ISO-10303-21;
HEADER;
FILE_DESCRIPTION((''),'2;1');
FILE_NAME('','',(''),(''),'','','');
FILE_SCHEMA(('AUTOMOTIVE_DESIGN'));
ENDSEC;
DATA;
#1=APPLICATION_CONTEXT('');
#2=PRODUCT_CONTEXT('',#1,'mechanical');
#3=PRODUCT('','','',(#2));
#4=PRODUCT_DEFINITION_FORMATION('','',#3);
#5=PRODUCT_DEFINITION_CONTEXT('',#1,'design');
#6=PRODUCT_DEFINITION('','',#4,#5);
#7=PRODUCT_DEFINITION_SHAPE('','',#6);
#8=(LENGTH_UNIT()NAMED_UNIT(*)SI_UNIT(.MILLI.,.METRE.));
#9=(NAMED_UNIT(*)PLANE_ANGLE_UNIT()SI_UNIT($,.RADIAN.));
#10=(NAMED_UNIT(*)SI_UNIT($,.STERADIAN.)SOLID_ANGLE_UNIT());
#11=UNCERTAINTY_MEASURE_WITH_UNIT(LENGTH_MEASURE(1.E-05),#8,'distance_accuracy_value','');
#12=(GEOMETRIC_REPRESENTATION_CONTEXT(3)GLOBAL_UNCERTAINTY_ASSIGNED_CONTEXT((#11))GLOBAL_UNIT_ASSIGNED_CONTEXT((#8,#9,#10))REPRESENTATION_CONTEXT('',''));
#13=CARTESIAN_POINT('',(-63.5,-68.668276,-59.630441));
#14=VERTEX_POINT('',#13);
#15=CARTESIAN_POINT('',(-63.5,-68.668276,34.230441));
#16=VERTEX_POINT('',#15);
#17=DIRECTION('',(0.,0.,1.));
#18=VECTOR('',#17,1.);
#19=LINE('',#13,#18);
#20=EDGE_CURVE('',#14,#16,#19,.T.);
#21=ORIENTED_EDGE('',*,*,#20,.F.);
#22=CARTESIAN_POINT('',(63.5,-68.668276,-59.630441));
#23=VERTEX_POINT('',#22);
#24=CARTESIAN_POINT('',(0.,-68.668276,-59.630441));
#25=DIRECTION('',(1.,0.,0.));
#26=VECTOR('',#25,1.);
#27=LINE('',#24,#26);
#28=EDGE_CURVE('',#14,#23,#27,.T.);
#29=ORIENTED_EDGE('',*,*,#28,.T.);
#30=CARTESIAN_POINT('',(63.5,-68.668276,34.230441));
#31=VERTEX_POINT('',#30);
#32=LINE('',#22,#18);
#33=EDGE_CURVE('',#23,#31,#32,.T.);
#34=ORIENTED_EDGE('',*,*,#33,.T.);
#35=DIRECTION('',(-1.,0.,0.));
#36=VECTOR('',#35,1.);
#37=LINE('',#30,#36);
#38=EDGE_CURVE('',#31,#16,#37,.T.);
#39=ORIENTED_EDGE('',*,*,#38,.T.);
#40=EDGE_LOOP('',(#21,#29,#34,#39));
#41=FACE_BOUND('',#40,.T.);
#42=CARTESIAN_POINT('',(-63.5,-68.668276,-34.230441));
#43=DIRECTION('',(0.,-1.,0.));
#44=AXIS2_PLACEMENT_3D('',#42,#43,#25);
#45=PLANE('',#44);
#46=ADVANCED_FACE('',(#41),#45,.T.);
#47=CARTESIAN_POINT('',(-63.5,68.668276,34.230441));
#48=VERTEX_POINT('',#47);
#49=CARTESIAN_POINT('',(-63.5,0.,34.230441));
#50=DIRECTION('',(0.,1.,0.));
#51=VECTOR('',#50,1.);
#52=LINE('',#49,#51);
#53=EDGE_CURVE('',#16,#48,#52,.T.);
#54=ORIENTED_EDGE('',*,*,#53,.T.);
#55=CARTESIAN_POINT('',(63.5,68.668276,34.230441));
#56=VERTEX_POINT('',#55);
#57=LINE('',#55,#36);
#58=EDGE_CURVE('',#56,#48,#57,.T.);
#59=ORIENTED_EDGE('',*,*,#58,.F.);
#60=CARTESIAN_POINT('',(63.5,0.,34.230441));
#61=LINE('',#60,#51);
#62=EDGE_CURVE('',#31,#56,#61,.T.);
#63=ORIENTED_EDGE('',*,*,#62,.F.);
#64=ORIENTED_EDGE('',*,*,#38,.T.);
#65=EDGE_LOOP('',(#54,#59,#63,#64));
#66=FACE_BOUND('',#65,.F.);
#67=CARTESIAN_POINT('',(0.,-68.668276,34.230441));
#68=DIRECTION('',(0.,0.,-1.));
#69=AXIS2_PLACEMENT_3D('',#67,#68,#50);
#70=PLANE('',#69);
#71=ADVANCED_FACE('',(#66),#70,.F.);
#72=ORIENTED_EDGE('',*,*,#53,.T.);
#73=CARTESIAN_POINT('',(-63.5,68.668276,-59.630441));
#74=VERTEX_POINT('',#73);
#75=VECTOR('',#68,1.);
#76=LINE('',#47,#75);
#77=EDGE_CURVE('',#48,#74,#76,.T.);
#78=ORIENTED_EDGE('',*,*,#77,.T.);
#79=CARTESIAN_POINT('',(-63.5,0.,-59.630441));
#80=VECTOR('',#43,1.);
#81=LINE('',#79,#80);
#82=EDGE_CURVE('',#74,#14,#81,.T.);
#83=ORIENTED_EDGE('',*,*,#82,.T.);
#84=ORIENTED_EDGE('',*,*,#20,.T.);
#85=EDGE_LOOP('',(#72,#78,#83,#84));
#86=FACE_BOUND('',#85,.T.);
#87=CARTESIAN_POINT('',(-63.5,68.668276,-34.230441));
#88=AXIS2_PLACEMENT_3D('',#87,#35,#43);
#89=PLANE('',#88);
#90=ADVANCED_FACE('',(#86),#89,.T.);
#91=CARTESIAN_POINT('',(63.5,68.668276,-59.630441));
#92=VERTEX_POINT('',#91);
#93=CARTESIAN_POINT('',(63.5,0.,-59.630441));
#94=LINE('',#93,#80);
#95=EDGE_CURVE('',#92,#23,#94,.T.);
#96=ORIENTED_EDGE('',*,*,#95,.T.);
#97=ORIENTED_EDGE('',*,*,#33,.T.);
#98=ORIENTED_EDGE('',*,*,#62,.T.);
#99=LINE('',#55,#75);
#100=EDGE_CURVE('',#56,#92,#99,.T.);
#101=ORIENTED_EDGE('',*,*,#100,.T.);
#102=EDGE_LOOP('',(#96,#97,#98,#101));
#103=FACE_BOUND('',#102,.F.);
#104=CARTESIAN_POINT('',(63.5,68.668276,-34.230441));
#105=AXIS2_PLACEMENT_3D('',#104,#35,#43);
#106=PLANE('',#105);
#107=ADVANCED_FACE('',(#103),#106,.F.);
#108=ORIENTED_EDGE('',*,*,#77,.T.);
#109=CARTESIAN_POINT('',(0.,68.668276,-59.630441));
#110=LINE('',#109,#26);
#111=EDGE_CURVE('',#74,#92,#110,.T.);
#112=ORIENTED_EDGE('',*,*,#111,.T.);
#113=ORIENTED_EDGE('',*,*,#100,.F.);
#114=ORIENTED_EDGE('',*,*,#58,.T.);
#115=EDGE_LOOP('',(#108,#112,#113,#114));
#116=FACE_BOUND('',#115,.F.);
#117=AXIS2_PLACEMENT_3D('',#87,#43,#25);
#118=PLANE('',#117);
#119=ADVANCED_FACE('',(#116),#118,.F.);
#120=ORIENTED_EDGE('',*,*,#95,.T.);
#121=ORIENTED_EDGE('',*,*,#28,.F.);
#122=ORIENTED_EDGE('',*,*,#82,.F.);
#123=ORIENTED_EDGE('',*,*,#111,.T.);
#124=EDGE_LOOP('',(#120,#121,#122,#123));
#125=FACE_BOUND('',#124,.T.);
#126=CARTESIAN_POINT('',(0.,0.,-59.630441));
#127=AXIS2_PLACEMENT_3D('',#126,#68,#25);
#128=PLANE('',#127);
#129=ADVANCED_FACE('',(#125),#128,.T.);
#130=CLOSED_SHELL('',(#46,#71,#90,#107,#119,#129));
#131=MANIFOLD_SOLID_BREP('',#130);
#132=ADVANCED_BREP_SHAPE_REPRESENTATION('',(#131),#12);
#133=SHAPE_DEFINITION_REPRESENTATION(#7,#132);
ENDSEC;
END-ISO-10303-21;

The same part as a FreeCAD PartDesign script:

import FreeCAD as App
import Part
import Sketcher
Q = App.Units.Quantity

doc = App.newDocument("Part")
body = doc.addObject("PartDesign::Body", "Body")

# Sketch on YZ plane
sketch1 = body.newObject("Sketcher::SketchObject", "Sketch")
sketch1.AttachmentSupport = (doc.getObject("YZ_Plane"), [""])
sketch1.MapMode = "FlatFace"
sketch1.addGeometry(Part.LineSegment(App.Vector(-68.668276, 34.230441, 0), App.Vector(-68.668276, -34.230441, 0)), False)
sketch1.addGeometry(Part.LineSegment(App.Vector(-68.668276, -34.230441, 0), App.Vector(68.668276, -34.230441, 0)), False)
sketch1.addGeometry(Part.LineSegment(App.Vector(68.668276, -34.230441, 0), App.Vector(68.668276, 34.230441, 0)), False)
sketch1.addGeometry(Part.LineSegment(App.Vector(68.668276, 34.230441, 0), App.Vector(-68.668276, 34.230441, 0)), False)
sketch1.addConstraint(Sketcher.Constraint("Coincident", 0, 2, 1, 1))
sketch1.addConstraint(Sketcher.Constraint("Coincident", 1, 2, 2, 1))
sketch1.addConstraint(Sketcher.Constraint("Coincident", 2, 2, 3, 1))
sketch1.addConstraint(Sketcher.Constraint("Coincident", 3, 2, 0, 1))
sketch1.addConstraint(Sketcher.Constraint("Vertical", 0))
sketch1.addConstraint(Sketcher.Constraint("Horizontal", 1))
sketch1.addConstraint(Sketcher.Constraint("Vertical", 2))
sketch1.addConstraint(Sketcher.Constraint("Horizontal", 3))
sketch1.addConstraint(Sketcher.Constraint("Symmetric", 0, 2, 2, 2, -1, 1))
sketch1.addConstraint(Sketcher.Constraint("DistanceY", 0, 2, 0, 1, 68.460882))
sketch1.addConstraint(Sketcher.Constraint("DistanceX", 1, 1, 1, 2, 137.336552))
pad1 = body.newObject("PartDesign::Pad", "Pad")
pad1.Profile = sketch1
pad1.Length = Q("5 in")
pad1.Midplane = True

# Sketch on XY plane
sketch2 = body.newObject("Sketcher::SketchObject", "Sketch001")
sketch2.AttachmentSupport = (doc.getObject("XY_Plane"), [""])
sketch2.MapMode = "FlatFace"
sketch2.AttachmentOffset = App.Placement(App.Vector(0, 0, -34.230441), App.Rotation())
sketch2.addGeometry(Part.LineSegment(App.Vector(-63.5, -68.668276, 0), App.Vector(-63.5, 68.668276, 0)), False)
sketch2.addGeometry(Part.LineSegment(App.Vector(-63.5, 68.668276, 0), App.Vector(63.5, 68.668276, 0)), False)
sketch2.addGeometry(Part.LineSegment(App.Vector(63.5, 68.668276, 0), App.Vector(63.5, -68.668276, 0)), False)
sketch2.addGeometry(Part.LineSegment(App.Vector(63.5, -68.668276, 0), App.Vector(-63.5, -68.668276, 0)), False)
sketch2.addConstraint(Sketcher.Constraint("Coincident", 0, 2, 1, 1))
sketch2.addConstraint(Sketcher.Constraint("Coincident", 1, 2, 2, 1))
sketch2.addConstraint(Sketcher.Constraint("Coincident", 2, 2, 3, 1))
sketch2.addConstraint(Sketcher.Constraint("Coincident", 3, 2, 0, 1))
sketch2.addConstraint(Sketcher.Constraint("Vertical", 0))
sketch2.addConstraint(Sketcher.Constraint("Horizontal", 1))
sketch2.addConstraint(Sketcher.Constraint("Vertical", 2))
sketch2.addConstraint(Sketcher.Constraint("Horizontal", 3))
sketch2.addConstraint(Sketcher.Constraint("Symmetric", 0, 2, 2, 2, -1, 1))
sketch2.addConstraint(Sketcher.Constraint("DistanceX", 1, 1, 1, 2, Q("5 in")))
sketch2.addConstraint(Sketcher.Constraint("DistanceY", 0, 1, 0, 2, 137.336552))
pad2 = body.newObject("PartDesign::Pad", "Pad001")
pad2.Profile = sketch2
pad2.Length = Q("1 in")
pad2.Reversed = True

doc.recompute()
